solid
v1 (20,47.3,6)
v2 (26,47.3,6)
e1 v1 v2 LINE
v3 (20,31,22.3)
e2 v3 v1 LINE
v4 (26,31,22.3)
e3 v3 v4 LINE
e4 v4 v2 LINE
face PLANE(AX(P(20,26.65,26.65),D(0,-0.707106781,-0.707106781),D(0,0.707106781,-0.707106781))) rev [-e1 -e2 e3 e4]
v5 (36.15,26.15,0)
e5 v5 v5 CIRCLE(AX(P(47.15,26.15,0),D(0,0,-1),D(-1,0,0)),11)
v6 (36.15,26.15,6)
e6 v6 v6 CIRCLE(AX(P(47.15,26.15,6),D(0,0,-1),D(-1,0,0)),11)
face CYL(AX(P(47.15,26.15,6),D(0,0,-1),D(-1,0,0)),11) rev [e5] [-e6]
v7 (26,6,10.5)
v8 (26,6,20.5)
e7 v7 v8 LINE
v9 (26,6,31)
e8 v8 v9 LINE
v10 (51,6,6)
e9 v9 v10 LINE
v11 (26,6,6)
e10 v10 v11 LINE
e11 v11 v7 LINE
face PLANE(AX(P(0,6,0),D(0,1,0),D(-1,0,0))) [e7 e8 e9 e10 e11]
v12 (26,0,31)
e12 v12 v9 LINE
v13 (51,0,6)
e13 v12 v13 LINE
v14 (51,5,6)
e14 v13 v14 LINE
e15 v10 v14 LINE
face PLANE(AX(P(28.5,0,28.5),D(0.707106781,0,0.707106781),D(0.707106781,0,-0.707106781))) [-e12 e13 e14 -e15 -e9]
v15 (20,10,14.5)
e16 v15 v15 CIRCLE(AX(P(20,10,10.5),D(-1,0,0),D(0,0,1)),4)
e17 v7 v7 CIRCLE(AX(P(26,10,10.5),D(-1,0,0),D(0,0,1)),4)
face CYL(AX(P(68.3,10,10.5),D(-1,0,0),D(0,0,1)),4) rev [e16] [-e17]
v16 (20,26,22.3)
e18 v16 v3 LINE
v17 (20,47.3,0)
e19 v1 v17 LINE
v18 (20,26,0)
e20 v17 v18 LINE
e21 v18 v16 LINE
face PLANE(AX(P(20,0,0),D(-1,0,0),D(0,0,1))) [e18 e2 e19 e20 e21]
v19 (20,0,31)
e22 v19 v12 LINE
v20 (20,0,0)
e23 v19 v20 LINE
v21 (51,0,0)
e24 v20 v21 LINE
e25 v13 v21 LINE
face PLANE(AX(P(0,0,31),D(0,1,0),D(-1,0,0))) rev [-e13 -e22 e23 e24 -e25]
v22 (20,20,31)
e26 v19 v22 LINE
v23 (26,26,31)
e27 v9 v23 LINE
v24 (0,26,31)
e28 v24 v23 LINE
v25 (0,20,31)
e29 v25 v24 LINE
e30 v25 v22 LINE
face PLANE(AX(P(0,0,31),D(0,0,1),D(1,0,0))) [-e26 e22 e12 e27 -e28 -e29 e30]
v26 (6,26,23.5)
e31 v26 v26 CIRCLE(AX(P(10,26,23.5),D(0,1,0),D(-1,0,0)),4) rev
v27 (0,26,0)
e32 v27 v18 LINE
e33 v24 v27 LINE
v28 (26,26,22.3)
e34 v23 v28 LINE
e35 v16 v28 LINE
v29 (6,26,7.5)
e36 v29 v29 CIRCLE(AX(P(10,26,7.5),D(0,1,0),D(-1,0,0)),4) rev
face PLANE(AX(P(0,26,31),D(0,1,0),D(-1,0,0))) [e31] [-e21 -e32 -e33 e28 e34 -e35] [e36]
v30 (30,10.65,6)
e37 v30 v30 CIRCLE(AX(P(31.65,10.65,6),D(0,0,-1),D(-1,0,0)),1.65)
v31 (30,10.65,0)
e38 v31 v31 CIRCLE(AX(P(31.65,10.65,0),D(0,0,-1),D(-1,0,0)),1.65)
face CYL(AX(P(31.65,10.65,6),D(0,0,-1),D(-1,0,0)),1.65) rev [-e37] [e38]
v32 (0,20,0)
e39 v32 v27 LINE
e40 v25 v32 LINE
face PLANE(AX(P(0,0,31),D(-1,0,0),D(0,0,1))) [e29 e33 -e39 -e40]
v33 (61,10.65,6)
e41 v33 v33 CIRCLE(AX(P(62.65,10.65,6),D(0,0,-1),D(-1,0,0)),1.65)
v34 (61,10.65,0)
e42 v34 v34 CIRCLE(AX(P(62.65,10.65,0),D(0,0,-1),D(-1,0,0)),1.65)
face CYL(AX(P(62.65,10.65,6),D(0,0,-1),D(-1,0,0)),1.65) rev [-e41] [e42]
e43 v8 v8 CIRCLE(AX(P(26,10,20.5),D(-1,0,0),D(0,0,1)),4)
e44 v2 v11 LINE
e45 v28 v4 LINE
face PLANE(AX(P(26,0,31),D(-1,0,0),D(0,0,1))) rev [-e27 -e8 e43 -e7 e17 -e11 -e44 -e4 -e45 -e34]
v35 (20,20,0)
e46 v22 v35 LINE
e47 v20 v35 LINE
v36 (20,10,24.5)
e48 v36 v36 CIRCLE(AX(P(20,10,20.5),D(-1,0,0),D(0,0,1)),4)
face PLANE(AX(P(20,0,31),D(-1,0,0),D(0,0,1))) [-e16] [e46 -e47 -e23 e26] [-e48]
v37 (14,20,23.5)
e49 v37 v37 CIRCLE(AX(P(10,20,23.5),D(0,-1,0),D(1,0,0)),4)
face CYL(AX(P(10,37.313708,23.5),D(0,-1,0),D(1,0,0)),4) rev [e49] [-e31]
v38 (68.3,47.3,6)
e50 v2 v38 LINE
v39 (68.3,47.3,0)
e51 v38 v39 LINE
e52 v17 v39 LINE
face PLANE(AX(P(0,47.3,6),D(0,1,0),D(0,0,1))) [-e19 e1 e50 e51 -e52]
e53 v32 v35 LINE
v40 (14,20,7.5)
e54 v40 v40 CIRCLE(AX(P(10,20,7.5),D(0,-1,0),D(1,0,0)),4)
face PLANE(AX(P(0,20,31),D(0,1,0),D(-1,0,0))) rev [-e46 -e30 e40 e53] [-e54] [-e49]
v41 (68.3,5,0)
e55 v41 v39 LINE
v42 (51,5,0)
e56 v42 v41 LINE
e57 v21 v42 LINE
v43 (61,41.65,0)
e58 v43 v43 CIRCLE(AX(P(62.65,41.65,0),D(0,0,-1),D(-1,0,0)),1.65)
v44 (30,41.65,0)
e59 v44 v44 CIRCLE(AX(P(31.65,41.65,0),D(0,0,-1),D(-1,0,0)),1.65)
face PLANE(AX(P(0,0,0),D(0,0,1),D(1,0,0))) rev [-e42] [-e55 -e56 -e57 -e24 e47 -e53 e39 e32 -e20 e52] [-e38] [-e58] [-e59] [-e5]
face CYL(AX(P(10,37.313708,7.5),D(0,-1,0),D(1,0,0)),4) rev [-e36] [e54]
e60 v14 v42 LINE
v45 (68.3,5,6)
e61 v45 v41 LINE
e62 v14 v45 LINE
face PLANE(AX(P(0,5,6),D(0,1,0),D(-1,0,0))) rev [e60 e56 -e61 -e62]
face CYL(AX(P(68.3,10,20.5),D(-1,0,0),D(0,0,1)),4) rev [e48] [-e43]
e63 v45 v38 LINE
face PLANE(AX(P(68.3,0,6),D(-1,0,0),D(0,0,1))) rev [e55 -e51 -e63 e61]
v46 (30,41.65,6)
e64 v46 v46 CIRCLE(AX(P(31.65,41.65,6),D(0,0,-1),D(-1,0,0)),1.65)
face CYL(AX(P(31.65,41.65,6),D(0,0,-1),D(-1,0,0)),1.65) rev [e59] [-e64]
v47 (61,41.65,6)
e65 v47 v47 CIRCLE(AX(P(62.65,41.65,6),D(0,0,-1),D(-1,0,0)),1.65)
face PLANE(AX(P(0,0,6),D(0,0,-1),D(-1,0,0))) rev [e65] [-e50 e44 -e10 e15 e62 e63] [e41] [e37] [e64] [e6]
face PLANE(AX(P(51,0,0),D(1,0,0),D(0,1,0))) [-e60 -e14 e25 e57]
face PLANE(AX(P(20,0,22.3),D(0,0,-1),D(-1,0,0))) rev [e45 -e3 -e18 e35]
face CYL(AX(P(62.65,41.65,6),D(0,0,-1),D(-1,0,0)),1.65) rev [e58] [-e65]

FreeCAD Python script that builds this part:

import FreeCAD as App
import Part
import Sketcher
Q = App.Units.Quantity

doc = App.newDocument("Part")
body = doc.addObject("PartDesign::Body", "Body")

# Sketch on XY plane
sketch1 = doc.addObject("Sketcher::SketchObject", "Sketch")
body.addObject(sketch1)
sketch1.AttachmentSupport = (doc.XY_Plane, [""])
sketch1.MapMode = "FlatFace"
sketch1.addGeometry([
    Part.LineSegment(App.Vector(0, 26, 0), App.Vector(0, 20, 0)),  # 0
    Part.LineSegment(App.Vector(0, 20, 0), App.Vector(20, 20, 0)),  # 1
    Part.LineSegment(App.Vector(20, 20, 0), App.Vector(20, 0, 0)),  # 2
    Part.LineSegment(App.Vector(20, 0, 0), App.Vector(26, 0, 0)),  # 3
    Part.LineSegment(App.Vector(26, 0, 0), App.Vector(26, 26, 0)),  # 4
    Part.LineSegment(App.Vector(26, 26, 0), App.Vector(0, 26, 0)),  # 5
], False)
sketch1.addConstraint([
    Sketcher.Constraint("Coincident", 0, 2, 1, 1),
    Sketcher.Constraint("Coincident", 1, 2, 2, 1),
    Sketcher.Constraint("Coincident", 2, 2, 3, 1),
    Sketcher.Constraint("Coincident", 3, 2, 4, 1),
    Sketcher.Constraint("Coincident", 4, 2, 5, 1),
    Sketcher.Constraint("Coincident", 5, 2, 0, 1),
    Sketcher.Constraint("Vertical", 0),
    Sketcher.Constraint("Horizontal", 1),
    Sketcher.Constraint("Vertical", 2),
    Sketcher.Constraint("Horizontal", 3),
    Sketcher.Constraint("Vertical", 4),
    Sketcher.Constraint("Horizontal", 5),
    Sketcher.Constraint("PointOnObject", 0, 2, -2),
    Sketcher.Constraint("PointOnObject", 2, 2, -1),
    Sketcher.Constraint("Equal", 3, 0),
    Sketcher.Constraint("Equal", 1, 2),
    Sketcher.Constraint("DistanceX", 1, 1, 1, 2, Q("20 mm")),
    Sketcher.Constraint("DistanceX", 3, 1, 3, 2, Q("6 mm")),
])
pad1 = doc.addObject("PartDesign::Pad", "Pad")
body.addObject(pad1)
pad1.Profile = sketch1
pad1.Length = 31

# Sketch on XY plane
sketch2 = doc.addObject("Sketcher::SketchObject", "Sketch001")
body.addObject(sketch2)
sketch2.AttachmentSupport = (doc.XY_Plane, [""])
sketch2.MapMode = "FlatFace"
sketch2.addGeometry([
    Part.LineSegment(App.Vector(68.3, 5, 0), App.Vector(26, 5, 0)),  # 0
    Part.LineSegment(App.Vector(26, 5, 0), App.Vector(26, 47.3, 0)),  # 1
    Part.LineSegment(App.Vector(26, 47.3, 0), App.Vector(68.3, 47.3, 0)),  # 2
    Part.LineSegment(App.Vector(68.3, 47.3, 0), App.Vector(68.3, 5, 0)),  # 3
    Part.Circle(App.Vector(31.65, 41.65, 0), App.Vector(0, 0, 1), 1.65),  # 4
    Part.Circle(App.Vector(62.65, 41.65, 0), App.Vector(0, 0, 1), 1.65),  # 5
    Part.Circle(App.Vector(31.65, 10.65, 0), App.Vector(0, 0, 1), 1.65),  # 6
    Part.Circle(App.Vector(47.15, 26.15, 0), App.Vector(0, 0, 1), 11),  # 7
    Part.Circle(App.Vector(62.65, 10.65, 0), App.Vector(0, 0, 1), 1.65),  # 8
], False)
sketch2.addConstraint([
    Sketcher.Constraint("Coincident", 0, 2, 1, 1),
    Sketcher.Constraint("Coincident", 1, 2, 2, 1),
    Sketcher.Constraint("Coincident", 2, 2, 3, 1),
    Sketcher.Constraint("Coincident", 3, 2, 0, 1),
    Sketcher.Constraint("Horizontal", 0),
    Sketcher.Constraint("Vertical", 1),
    Sketcher.Constraint("Horizontal", 2),
    Sketcher.Constraint("Vertical", 3),
    Sketcher.Constraint("Equal", 4, 5),
    Sketcher.Constraint("Equal", 5, 6),
    Sketcher.Constraint("Equal", 6, 8),
    Sketcher.Constraint("Horizontal", 4, 3, 5, 3),
    Sketcher.Constraint("Horizontal", 6, 3, 8, 3),
    Sketcher.Constraint("Vertical", 4, 3, 6, 3),
    Sketcher.Constraint("Vertical", 5, 3, 8, 3),
    Sketcher.Constraint("Equal", 2, 1),
    Sketcher.Constraint("Diameter", 7, Q("22 mm")),
    Sketcher.Constraint("Diameter", 4, Q("3.3 mm")),
    Sketcher.Constraint("DistanceX", 0, 2, 0, 1, Q("42.3 mm")),
    Sketcher.Constraint("DistanceX", -1, 1, 0, 2, Q("26 mm")),
    Sketcher.Constraint("DistanceY", -1, 1, 0, 2, Q("5 mm")),
    Sketcher.Constraint("DistanceX", 4, 3, 5, 3, Q("31 mm")),
    Sketcher.Constraint("DistanceY", 6, 3, 4, 3, Q("31 mm")),
    Sketcher.Constraint("DistanceX", 4, 3, 7, 3, Q("15.5 mm")),
    Sketcher.Constraint("DistanceY", 7, 3, 4, 3, Q("15.5 mm")),
    Sketcher.Constraint("DistanceX", -1, 1, 4, 3, Q("31.65 mm")),
    Sketcher.Constraint("DistanceY", -1, 1, 4, 3, Q("41.65 mm")),
])
pad2 = doc.addObject("PartDesign::Pad", "Pad001")
body.addObject(pad2)
pad2.Profile = sketch2
pad2.Length = 6

# Sketch on XZ plane
sketch3 = doc.addObject("Sketcher::SketchObject", "Sketch002")
body.addObject(sketch3)
sketch3.AttachmentSupport = (doc.XZ_Plane, [""])
sketch3.MapMode = "FlatFace"
sketch3.AttachmentOffset = App.Placement(App.Vector(0, 0, -20), App.Rotation())
sketch3.addGeometry([
    Part.Circle(App.Vector(10, 7.5, 0), App.Vector(0, 0, 1), 4),
    Part.Circle(App.Vector(10, 23.5, 0), App.Vector(0, 0, 1), 4),
], False)
sketch3.addConstraint([
    Sketcher.Constraint("Equal", 0, 1),
    Sketcher.Constraint("Vertical", 0, 3, 1, 3),
    Sketcher.Constraint("Diameter", 0, Q("8 mm")),
    Sketcher.Constraint("DistanceX", -1, 1, 0, 3, Q("10 mm")),
    Sketcher.Constraint("DistanceY", 0, 3, 1, 3, Q("16 mm")),
    Sketcher.Constraint("DistanceY", -1, 1, 0, 3, Q("7.5 mm")),
])
pocket1 = doc.addObject("PartDesign::Pocket", "Pocket")
body.addObject(pocket1)
pocket1.Profile = sketch3
pocket1.Length = 6

# Sketch on YZ plane
sketch4 = doc.addObject("Sketcher::SketchObject", "Sketch003")
body.addObject(sketch4)
sketch4.AttachmentSupport = (doc.YZ_Plane, [""])
sketch4.MapMode = "FlatFace"
sketch4.AttachmentOffset = App.Placement(App.Vector(0, 0, 20), App.Rotation())
sketch4.addGeometry([
    Part.Circle(App.Vector(10, 20.5, 0), App.Vector(0, 0, 1), 4),
    Part.Circle(App.Vector(10, 10.5, 0), App.Vector(0, 0, 1), 4),
], False)
sketch4.addConstraint([
    Sketcher.Constraint("Equal", 0, 1),
    Sketcher.Constraint("Vertical", 0, 3, 1, 3),
    Sketcher.Constraint("Diameter", 0, Q("8 mm")),
    Sketcher.Constraint("DistanceX", -1, 1, 0, 3, Q("10 mm")),
    Sketcher.Constraint("DistanceY", 1, 3, 0, 3, Q("10 mm")),
    Sketcher.Constraint("DistanceY", -1, 1, 0, 3, Q("20.5 mm")),
])
pocket2 = doc.addObject("PartDesign::Pocket", "Pocket001")
body.addObject(pocket2)
pocket2.Profile = sketch4
pocket2.Type = "ThroughAll"
pocket2.Reversed = True

# Sketch on YZ plane
sketch5 = doc.addObject("Sketcher::SketchObject", "Sketch004")
body.addObject(sketch5)
sketch5.AttachmentSupport = (doc.YZ_Plane, [""])
sketch5.MapMode = "FlatFace"
sketch5.AttachmentOffset = App.Placement(App.Vector(0, 0, 26), App.Rotation())
sketch5.addGeometry([
    Part.LineSegment(App.Vector(47.3, 6, 0), App.Vector(47.3, 0, 0)),  # 0
    Part.LineSegment(App.Vector(47.3, 0, 0), App.Vector(26, 0, 0)),  # 1
    Part.LineSegment(App.Vector(26, 0, 0), App.Vector(26, 22.3, 0)),  # 2
    Part.LineSegment(App.Vector(26, 22.3, 0), App.Vector(31, 22.3, 0)),  # 3
    Part.LineSegment(App.Vector(31, 22.3, 0), App.Vector(47.3, 6, 0)),  # 4
], False)
sketch5.addConstraint([
    Sketcher.Constraint("Coincident", 0, 2, 1, 1),
    Sketcher.Constraint("Coincident", 1, 2, 2, 1),
    Sketcher.Constraint("Coincident", 2, 2, 3, 1),
    Sketcher.Constraint("Coincident", 3, 2, 4, 1),
    Sketcher.Constraint("Coincident", 4, 2, 0, 1),
    Sketcher.Constraint("Vertical", 0),
    Sketcher.Constraint("Horizontal", 1),
    Sketcher.Constraint("Vertical", 2),
    Sketcher.Constraint("Horizontal", 3),
    Sketcher.Constraint("PointOnObject", 0, 2, -1),
    Sketcher.Constraint("DistanceX", 3, 1, 3, 2, Q("5 mm")),
    Sketcher.Constraint("DistanceY", 0, 2, 0, 1, Q("6 mm")),
    Sketcher.Constraint("Angle", 4, Q("-45 deg")),
    Sketcher.Constraint("DistanceX", 1, 2, 1, 1, Q("21.3 mm")),
    Sketcher.Constraint("DistanceX", -1, 1, 1, 2, Q("26 mm")),
])
pad3 = doc.addObject("PartDesign::Pad", "Pad002")
body.addObject(pad3)
pad3.Profile = sketch5
pad3.Length = 6
pad3.Reversed = True

# Sketch on XZ plane
sketch6 = doc.addObject("Sketcher::SketchObject", "Sketch005")
body.addObject(sketch6)
sketch6.AttachmentSupport = (doc.XZ_Plane, [""])
sketch6.MapMode = "FlatFace"
sketch6.AttachmentOffset = App.Placement(App.Vector(0, 0, -5), App.Rotation())
sketch6.addGeometry([
    Part.LineSegment(App.Vector(26, 31, 0), App.Vector(26, 0, 0)),
    Part.LineSegment(App.Vector(26, 0, 0), App.Vector(51, 0, 0)),
    Part.LineSegment(App.Vector(51, 0, 0), App.Vector(51, 6, 0)),
    Part.LineSegment(App.Vector(51, 6, 0), App.Vector(26, 31, 0)),
], False)
sketch6.addConstraint([
    Sketcher.Constraint("Coincident", 0, 2, 1, 1),
    Sketcher.Constraint("Coincident", 1, 2, 2, 1),
    Sketcher.Constraint("Coincident", 2, 2, 3, 1),
    Sketcher.Constraint("Coincident", 3, 2, 0, 1),
    Sketcher.Constraint("Vertical", 0),
    Sketcher.Constraint("Horizontal", 1),
    Sketcher.Constraint("Vertical", 2),
    Sketcher.Constraint("PointOnObject", 0, 2, -1),
    Sketcher.Constraint("DistanceX", 1, 1, 1, 2, Q("25 mm")),
    Sketcher.Constraint("DistanceY", 0, 2, 0, 1, Q("31 mm")),
    Sketcher.Constraint("DistanceY", 2, 1, 2, 2, Q("6 mm")),
    Sketcher.Constraint("DistanceX", -1, 1, 0, 2, Q("26 mm")),
])
pad4 = doc.addObject("PartDesign::Pad", "Pad003")
body.addObject(pad4)
pad4.Profile = sketch6
pad4.Length = 5

# Sketch on XZ plane
sketch7 = doc.addObject("Sketcher::SketchObject", "Sketch006")
body.addObject(sketch7)
sketch7.AttachmentSupport = (doc.XZ_Plane, [""])
sketch7.MapMode = "FlatFace"
sketch7.AttachmentOffset = App.Placement(App.Vector(0, 0, -5), App.Rotation())
sketch7.addGeometry([
    Part.LineSegment(App.Vector(26, 31, 0), App.Vector(51, 6, 0)),
    Part.LineSegment(App.Vector(51, 6, 0), App.Vector(26, 6, 0)),
    Part.LineSegment(App.Vector(26, 6, 0), App.Vector(26, 31, 0)),
], False)
sketch7.addConstraint([
    Sketcher.Constraint("Coincident", 0, 2, 1, 1),
    Sketcher.Constraint("Coincident", 1, 2, 2, 1),
    Sketcher.Constraint("Coincident", 2, 2, 0, 1),
    Sketcher.Constraint("Horizontal", 1),
    Sketcher.Constraint("Vertical", 2),
    Sketcher.Constraint("Equal", 1, 2),
    Sketcher.Constraint("DistanceX", 1, 2, 1, 1, Q("25 mm")),
    Sketcher.Constraint("DistanceX", -1, 1, 0, 2, Q("51 mm")),
    Sketcher.Constraint("DistanceY", -1, 1, 0, 2, Q("6 mm")),
])
pad5 = doc.addObject("PartDesign::Pad", "Pad004")
body.addObject(pad5)
pad5.Profile = sketch7
pad5.Length = 1
pad5.Reversed = True

doc.recompute()
